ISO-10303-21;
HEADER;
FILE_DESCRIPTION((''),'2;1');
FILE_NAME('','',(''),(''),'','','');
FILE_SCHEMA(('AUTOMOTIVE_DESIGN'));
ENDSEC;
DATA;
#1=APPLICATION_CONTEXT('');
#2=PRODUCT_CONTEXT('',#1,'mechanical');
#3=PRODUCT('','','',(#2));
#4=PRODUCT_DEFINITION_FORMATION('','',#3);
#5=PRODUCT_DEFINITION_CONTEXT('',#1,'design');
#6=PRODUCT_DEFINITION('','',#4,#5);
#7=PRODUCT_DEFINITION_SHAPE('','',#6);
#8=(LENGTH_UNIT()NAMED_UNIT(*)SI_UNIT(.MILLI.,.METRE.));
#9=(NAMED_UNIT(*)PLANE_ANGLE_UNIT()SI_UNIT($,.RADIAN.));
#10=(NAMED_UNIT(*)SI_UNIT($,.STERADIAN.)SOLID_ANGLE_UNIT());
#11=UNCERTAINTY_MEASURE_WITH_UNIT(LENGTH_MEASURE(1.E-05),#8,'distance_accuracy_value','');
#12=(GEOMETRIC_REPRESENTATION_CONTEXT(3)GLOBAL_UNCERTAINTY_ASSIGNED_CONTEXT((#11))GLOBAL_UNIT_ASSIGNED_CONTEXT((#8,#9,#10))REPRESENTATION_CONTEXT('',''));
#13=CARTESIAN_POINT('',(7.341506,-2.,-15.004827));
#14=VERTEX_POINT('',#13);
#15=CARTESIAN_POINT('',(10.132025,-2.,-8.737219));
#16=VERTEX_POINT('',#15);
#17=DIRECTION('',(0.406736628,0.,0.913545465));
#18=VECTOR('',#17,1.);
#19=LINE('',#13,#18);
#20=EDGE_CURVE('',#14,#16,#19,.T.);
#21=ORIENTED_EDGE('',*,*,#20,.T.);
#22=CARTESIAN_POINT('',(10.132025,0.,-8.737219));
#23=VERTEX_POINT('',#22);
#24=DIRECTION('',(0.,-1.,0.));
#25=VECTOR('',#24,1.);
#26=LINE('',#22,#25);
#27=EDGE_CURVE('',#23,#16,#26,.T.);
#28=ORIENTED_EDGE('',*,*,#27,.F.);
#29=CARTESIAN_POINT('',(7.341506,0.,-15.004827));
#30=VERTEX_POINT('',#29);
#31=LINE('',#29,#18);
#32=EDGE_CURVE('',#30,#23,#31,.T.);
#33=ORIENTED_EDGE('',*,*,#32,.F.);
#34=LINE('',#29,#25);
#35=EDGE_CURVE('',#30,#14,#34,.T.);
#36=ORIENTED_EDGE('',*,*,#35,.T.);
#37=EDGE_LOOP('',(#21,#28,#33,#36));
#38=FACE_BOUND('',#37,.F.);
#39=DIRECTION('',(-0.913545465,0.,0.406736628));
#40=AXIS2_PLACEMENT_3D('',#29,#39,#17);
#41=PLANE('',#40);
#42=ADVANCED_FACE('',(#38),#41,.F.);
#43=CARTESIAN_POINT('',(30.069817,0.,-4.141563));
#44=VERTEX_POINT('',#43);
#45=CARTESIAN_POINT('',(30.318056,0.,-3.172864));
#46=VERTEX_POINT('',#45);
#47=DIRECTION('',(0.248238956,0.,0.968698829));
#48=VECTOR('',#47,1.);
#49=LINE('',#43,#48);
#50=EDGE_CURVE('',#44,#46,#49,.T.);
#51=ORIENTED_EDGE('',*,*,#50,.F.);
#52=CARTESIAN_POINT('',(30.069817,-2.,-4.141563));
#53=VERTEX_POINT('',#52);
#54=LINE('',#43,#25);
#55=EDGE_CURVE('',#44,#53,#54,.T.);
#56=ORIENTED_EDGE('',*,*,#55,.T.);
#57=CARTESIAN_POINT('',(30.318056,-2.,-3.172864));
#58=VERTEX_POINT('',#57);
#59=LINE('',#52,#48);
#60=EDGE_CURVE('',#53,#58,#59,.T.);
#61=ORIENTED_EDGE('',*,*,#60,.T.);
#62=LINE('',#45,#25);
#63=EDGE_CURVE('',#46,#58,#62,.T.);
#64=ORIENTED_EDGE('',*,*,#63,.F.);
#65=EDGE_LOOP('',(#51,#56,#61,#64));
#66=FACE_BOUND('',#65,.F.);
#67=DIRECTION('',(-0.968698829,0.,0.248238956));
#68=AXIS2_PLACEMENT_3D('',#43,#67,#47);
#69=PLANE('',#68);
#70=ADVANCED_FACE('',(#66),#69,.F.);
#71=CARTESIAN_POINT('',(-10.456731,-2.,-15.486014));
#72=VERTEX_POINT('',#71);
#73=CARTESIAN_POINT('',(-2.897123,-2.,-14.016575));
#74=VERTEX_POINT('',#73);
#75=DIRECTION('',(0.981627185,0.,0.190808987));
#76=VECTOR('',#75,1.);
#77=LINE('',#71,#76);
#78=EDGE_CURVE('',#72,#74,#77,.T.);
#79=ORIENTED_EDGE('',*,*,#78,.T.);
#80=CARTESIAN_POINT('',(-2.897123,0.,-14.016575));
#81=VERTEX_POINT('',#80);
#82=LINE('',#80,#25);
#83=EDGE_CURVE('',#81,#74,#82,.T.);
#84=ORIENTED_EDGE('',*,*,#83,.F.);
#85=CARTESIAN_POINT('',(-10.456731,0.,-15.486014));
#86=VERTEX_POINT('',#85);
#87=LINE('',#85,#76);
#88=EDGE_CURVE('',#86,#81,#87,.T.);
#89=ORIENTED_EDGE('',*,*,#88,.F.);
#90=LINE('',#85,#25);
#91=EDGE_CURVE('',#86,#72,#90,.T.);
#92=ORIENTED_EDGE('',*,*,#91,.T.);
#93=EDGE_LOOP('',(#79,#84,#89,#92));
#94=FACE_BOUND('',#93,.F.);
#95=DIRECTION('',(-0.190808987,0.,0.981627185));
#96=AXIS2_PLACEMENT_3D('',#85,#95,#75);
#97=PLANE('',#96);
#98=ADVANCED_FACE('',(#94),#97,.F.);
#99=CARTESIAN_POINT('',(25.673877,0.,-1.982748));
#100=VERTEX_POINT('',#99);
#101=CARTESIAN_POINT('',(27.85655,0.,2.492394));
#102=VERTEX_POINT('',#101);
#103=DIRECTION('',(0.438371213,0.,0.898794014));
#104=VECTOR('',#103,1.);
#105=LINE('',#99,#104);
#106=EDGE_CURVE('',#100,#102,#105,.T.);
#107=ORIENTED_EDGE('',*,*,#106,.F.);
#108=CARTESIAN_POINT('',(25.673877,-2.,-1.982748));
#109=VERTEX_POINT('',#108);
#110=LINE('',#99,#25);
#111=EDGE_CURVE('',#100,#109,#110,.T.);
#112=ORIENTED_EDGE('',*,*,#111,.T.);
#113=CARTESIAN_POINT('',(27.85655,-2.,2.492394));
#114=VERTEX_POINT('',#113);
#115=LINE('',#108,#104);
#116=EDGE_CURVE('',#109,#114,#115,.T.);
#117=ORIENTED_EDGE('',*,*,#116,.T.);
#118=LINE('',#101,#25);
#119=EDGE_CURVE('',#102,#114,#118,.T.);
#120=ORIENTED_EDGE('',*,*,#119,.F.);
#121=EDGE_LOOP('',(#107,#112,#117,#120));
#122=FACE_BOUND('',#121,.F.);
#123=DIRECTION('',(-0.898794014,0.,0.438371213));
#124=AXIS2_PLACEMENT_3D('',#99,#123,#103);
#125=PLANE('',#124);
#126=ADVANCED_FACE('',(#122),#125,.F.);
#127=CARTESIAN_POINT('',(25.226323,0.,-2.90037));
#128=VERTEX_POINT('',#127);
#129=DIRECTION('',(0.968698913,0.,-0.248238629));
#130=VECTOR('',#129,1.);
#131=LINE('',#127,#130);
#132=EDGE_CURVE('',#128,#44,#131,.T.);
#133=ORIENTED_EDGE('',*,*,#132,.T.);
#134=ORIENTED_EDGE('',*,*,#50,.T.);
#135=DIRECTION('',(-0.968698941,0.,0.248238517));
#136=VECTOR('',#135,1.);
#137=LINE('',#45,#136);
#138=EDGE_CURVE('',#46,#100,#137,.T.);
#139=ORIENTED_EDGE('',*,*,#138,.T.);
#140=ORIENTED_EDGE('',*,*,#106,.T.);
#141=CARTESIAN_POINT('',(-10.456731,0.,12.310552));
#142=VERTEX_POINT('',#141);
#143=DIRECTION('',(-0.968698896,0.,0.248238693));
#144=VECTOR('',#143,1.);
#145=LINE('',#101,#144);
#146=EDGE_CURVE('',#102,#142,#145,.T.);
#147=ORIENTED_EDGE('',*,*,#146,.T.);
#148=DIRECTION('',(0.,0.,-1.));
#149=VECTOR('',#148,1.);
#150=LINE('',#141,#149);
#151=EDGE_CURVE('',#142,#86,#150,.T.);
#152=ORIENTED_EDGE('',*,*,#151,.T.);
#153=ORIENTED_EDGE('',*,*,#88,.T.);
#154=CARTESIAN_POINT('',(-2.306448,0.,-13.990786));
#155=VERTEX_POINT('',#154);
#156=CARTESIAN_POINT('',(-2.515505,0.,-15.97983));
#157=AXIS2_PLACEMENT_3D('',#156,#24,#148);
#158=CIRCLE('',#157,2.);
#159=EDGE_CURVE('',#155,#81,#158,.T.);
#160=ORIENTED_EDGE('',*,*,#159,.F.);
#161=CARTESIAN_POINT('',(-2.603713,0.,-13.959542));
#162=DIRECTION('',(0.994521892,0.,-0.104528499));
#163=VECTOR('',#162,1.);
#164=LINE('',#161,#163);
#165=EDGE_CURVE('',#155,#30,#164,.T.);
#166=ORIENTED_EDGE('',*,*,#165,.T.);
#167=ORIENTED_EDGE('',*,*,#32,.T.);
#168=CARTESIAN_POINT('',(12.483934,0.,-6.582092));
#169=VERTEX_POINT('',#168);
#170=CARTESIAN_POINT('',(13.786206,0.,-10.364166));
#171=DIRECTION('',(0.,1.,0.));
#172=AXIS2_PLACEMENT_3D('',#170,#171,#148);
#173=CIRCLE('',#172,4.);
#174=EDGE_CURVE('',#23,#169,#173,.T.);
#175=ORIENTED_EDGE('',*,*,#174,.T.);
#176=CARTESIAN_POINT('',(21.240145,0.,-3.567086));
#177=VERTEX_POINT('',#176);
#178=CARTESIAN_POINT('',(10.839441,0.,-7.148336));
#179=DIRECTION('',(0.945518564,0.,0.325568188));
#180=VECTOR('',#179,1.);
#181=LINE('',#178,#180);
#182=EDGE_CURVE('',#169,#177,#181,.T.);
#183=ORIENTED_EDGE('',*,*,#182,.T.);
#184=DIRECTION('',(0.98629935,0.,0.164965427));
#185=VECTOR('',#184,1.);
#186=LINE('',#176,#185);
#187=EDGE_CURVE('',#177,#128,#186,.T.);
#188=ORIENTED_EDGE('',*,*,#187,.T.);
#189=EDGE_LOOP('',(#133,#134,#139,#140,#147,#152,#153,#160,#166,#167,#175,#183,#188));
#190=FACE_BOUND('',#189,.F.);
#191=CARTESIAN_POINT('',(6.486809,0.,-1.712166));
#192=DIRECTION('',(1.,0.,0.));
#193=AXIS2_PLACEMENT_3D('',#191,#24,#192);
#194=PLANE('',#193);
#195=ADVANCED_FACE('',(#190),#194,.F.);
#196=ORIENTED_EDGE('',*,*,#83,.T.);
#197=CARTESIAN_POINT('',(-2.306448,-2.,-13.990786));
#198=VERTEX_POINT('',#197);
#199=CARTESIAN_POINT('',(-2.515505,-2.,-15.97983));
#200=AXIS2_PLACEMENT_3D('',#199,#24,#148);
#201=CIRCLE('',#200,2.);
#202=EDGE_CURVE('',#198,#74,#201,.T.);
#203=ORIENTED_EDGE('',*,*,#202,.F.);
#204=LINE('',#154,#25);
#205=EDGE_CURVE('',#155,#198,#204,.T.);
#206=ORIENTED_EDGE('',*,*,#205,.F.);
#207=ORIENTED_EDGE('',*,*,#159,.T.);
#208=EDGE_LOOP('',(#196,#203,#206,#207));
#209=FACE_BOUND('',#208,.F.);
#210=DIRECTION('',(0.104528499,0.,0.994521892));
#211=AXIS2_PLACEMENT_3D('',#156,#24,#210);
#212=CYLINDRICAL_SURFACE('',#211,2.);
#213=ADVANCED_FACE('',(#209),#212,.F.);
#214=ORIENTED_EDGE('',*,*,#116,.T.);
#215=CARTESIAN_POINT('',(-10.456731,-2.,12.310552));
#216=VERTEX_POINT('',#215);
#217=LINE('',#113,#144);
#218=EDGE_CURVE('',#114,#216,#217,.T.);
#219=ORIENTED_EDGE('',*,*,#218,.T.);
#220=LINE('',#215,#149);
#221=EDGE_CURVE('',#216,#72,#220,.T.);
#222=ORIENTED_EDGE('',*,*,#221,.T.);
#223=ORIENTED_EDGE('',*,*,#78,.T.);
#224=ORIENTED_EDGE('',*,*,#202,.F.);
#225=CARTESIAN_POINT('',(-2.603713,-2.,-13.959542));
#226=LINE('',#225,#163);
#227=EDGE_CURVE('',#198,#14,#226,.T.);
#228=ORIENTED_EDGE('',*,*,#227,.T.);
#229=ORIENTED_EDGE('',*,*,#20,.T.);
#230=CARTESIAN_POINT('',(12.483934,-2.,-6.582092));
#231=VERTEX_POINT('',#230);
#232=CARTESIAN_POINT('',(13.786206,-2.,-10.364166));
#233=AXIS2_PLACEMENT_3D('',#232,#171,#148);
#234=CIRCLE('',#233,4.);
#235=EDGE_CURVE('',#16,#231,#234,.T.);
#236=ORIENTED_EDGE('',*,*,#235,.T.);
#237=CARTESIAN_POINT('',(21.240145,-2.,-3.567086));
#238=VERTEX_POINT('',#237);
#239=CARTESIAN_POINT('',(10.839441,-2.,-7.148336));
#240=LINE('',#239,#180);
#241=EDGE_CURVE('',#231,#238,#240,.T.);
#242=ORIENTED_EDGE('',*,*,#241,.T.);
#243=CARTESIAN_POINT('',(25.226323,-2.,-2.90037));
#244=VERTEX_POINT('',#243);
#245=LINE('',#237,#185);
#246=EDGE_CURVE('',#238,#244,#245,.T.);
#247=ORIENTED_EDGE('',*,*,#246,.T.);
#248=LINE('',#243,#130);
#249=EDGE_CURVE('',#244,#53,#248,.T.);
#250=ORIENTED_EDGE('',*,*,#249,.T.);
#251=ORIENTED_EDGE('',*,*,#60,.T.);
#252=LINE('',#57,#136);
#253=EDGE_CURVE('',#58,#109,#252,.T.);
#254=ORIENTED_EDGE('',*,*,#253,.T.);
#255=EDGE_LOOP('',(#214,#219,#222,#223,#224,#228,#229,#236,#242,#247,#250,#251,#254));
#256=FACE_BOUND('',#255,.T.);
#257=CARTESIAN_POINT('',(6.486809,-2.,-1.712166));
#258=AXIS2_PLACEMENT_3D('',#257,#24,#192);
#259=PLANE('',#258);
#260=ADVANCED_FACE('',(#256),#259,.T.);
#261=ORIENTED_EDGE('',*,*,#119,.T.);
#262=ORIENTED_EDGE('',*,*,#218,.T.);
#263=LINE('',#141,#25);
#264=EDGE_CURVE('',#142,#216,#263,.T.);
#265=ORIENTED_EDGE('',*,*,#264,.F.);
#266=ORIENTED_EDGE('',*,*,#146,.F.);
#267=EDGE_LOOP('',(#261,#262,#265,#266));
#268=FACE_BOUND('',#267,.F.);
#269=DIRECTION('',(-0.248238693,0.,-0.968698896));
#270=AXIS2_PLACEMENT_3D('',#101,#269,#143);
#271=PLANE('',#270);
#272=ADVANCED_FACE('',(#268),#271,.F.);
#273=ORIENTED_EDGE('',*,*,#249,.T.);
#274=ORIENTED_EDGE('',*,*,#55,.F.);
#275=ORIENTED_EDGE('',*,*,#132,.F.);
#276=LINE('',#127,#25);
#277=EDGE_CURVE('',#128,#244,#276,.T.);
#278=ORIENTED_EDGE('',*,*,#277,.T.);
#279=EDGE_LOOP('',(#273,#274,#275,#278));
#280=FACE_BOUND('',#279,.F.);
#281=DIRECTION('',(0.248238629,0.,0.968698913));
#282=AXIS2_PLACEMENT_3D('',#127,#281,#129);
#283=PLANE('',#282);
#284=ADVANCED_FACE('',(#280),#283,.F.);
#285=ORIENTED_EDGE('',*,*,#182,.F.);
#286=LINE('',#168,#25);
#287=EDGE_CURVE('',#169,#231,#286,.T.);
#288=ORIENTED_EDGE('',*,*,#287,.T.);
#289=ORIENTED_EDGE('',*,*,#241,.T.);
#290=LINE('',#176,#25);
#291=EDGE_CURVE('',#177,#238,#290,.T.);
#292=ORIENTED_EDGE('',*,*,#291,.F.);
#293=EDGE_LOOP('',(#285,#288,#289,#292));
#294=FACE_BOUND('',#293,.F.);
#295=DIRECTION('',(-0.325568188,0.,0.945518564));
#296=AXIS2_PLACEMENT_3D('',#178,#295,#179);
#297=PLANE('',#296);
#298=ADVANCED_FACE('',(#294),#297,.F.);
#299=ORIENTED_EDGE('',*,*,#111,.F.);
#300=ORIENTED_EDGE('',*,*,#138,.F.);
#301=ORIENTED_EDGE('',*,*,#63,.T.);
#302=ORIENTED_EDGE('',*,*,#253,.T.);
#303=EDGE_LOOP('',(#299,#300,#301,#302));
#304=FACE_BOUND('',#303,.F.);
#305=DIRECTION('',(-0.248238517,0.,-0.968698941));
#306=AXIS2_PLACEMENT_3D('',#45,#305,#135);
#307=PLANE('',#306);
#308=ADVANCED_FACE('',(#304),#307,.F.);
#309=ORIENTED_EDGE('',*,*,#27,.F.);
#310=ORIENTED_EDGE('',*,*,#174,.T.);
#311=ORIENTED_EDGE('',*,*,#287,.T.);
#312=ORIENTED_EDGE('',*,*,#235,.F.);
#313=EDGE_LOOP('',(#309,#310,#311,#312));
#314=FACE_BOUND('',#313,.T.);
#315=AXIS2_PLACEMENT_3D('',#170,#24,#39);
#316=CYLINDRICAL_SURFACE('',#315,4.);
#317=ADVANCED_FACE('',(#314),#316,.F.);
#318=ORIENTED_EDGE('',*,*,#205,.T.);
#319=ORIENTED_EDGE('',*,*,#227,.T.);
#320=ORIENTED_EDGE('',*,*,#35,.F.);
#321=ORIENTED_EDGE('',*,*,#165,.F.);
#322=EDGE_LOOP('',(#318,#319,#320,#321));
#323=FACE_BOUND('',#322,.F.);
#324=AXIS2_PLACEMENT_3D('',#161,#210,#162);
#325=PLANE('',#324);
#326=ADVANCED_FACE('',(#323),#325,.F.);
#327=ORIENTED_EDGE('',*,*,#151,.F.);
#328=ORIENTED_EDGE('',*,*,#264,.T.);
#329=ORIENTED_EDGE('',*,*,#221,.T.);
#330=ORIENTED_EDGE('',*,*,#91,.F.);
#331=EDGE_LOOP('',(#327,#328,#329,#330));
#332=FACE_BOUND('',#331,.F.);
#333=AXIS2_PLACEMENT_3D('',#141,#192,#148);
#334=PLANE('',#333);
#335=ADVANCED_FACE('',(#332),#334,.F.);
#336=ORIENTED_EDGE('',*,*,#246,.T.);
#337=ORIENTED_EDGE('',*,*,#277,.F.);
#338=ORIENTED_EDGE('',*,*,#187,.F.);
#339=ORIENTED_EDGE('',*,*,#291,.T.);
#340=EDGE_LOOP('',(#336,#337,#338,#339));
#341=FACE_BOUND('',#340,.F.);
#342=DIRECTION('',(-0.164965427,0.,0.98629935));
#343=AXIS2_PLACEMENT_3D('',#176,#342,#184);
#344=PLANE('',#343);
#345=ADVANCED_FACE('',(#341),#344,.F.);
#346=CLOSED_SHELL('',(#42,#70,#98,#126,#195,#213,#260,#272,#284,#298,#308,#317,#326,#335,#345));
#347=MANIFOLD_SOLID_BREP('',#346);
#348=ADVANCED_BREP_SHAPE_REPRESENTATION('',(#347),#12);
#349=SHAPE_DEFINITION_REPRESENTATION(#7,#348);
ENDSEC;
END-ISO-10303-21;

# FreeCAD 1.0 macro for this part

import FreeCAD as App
import Part
import Sketcher
Q = App.Units.Quantity


def edges_at(feature, points):
    """Names of the edges that pass closest to the given points."""
    edges = feature.Shape.Edges
    near = lambda p: min(range(len(edges)), key=lambda i: edges[i].distToShape(Part.Vertex(*p))[0])
    return sorted({f"Edge{near(p) + 1}" for p in points})

doc = App.newDocument("Part")
body = doc.addObject("PartDesign::Body", "Body")

sketch1 = body.newObject("Sketcher::SketchObject", "Sketch")
sketch1.AttachmentSupport = (doc.getObject("XZ_Plane"), [""])
sketch1.MapMode = "FlatFace"
sketch1.addGeometry([
    Part.LineSegment(App.Vector(-10.456731, 12.310552, 0), App.Vector(-10.456731, -15.486014, 0)),
    Part.LineSegment(App.Vector(-10.456731, -15.486014, 0), App.Vector(-2.603713, -13.959542, 0)),
    Part.LineSegment(App.Vector(-2.603713, -13.959542, 0), App.Vector(7.341506, -15.004827, 0)),
    Part.LineSegment(App.Vector(7.341506, -15.004827, 0), App.Vector(10.839441, -7.148336, 0)),
    Part.LineSegment(App.Vector(10.839441, -7.148336, 0), App.Vector(21.240145, -3.567086, 0)),
    Part.LineSegment(App.Vector(21.240145, -3.567086, 0), App.Vector(25.226323, -2.90037, 0)),
    Part.LineSegment(App.Vector(25.226323, -2.90037, 0), App.Vector(30.069817, -4.141563, 0)),
    Part.LineSegment(App.Vector(30.069817, -4.141563, 0), App.Vector(30.318056, -3.172864, 0)),
    Part.LineSegment(App.Vector(30.318056, -3.172864, 0), App.Vector(25.673877, -1.982748, 0)),
    Part.LineSegment(App.Vector(25.673877, -1.982748, 0), App.Vector(27.85655, 2.492394, 0)),
    Part.LineSegment(App.Vector(27.85655, 2.492394, 0), App.Vector(-10.456731, 12.310552, 0)),
], False)
sketch1.addConstraint([
    Sketcher.Constraint("Coincident", 0, 2, 1, 1),
    Sketcher.Constraint("Coincident", 1, 2, 2, 1),
    Sketcher.Constraint("Coincident", 2, 2, 3, 1),
    Sketcher.Constraint("Coincident", 3, 2, 4, 1),
    Sketcher.Constraint("Coincident", 4, 2, 5, 1),
    Sketcher.Constraint("Coincident", 5, 2, 6, 1),
    Sketcher.Constraint("Coincident", 6, 2, 7, 1),
    Sketcher.Constraint("Coincident", 7, 2, 8, 1),
    Sketcher.Constraint("Coincident", 8, 2, 9, 1),
    Sketcher.Constraint("Coincident", 9, 2, 10, 1),
    Sketcher.Constraint("Coincident", 10, 2, 0, 1),
    Sketcher.Constraint("Vertical", 0),
    Sketcher.Constraint("Perpendicular", 6, 7),
    Sketcher.Constraint("Perpendicular", 7, 8),
    Sketcher.Constraint("Parallel", 8, 10),
    Sketcher.Constraint("Angle", 1, Q("11 deg")),
    Sketcher.Constraint("Angle", 2, Q("-6.000002 deg")),
    Sketcher.Constraint("Angle", 3, Q("66.000001 deg")),
    Sketcher.Constraint("Angle", 4, Q("19.000002 deg")),
    Sketcher.Constraint("Angle", 9, Q("63.999996 deg")),
    Sketcher.Constraint("Distance", 1, Q("8.000001 mm")),
    Sketcher.Constraint("Distance", 2, Q("10 mm")),
    Sketcher.Constraint("Distance", 4, Q("11 mm")),
    Sketcher.Constraint("Distance", 6, Q("4.999999 mm")),
    Sketcher.Constraint("Distance", 7, Q("1 mm")),
    Sketcher.Constraint("Distance", 3, Q("8.6 mm")),
    Sketcher.Constraint("DistanceY", 6, 2, 7, 2, Q("0.968699 mm")),
    Sketcher.Constraint("Distance", 5, Q("4.04155 mm")),
    Sketcher.Constraint("Distance", 9, Q("4.979052 mm")),
    Sketcher.Constraint("Distance", 10, Q("39.55128 mm")),
    Sketcher.Constraint("DistanceY", 0, 2, 0, 1, Q("27.796566 mm")),
    Sketcher.Constraint("DistanceX", 0, 2, -1, 1, Q("10.456731 mm")),
    Sketcher.Constraint("DistanceY", 5, 2, -1, 1, Q("2.90037 mm")),
])
pad1 = body.newObject("PartDesign::Pad", "Pad")
pad1.Profile = sketch1
pad1.Length = 2
doc.recompute()

fillet = body.newObject("PartDesign::Fillet", "Fillet")
fillet.Base = (pad1, edges_at(pad1, [(10.839, -1, -7.148)]))
fillet.Radius = 4
doc.recompute()

fillet2 = body.newObject("PartDesign::Fillet", "Fillet001")
fillet2.Base = (fillet, edges_at(fillet, [(-2.604, -1, -13.96)]))
fillet2.Radius = 2

doc.recompute()
